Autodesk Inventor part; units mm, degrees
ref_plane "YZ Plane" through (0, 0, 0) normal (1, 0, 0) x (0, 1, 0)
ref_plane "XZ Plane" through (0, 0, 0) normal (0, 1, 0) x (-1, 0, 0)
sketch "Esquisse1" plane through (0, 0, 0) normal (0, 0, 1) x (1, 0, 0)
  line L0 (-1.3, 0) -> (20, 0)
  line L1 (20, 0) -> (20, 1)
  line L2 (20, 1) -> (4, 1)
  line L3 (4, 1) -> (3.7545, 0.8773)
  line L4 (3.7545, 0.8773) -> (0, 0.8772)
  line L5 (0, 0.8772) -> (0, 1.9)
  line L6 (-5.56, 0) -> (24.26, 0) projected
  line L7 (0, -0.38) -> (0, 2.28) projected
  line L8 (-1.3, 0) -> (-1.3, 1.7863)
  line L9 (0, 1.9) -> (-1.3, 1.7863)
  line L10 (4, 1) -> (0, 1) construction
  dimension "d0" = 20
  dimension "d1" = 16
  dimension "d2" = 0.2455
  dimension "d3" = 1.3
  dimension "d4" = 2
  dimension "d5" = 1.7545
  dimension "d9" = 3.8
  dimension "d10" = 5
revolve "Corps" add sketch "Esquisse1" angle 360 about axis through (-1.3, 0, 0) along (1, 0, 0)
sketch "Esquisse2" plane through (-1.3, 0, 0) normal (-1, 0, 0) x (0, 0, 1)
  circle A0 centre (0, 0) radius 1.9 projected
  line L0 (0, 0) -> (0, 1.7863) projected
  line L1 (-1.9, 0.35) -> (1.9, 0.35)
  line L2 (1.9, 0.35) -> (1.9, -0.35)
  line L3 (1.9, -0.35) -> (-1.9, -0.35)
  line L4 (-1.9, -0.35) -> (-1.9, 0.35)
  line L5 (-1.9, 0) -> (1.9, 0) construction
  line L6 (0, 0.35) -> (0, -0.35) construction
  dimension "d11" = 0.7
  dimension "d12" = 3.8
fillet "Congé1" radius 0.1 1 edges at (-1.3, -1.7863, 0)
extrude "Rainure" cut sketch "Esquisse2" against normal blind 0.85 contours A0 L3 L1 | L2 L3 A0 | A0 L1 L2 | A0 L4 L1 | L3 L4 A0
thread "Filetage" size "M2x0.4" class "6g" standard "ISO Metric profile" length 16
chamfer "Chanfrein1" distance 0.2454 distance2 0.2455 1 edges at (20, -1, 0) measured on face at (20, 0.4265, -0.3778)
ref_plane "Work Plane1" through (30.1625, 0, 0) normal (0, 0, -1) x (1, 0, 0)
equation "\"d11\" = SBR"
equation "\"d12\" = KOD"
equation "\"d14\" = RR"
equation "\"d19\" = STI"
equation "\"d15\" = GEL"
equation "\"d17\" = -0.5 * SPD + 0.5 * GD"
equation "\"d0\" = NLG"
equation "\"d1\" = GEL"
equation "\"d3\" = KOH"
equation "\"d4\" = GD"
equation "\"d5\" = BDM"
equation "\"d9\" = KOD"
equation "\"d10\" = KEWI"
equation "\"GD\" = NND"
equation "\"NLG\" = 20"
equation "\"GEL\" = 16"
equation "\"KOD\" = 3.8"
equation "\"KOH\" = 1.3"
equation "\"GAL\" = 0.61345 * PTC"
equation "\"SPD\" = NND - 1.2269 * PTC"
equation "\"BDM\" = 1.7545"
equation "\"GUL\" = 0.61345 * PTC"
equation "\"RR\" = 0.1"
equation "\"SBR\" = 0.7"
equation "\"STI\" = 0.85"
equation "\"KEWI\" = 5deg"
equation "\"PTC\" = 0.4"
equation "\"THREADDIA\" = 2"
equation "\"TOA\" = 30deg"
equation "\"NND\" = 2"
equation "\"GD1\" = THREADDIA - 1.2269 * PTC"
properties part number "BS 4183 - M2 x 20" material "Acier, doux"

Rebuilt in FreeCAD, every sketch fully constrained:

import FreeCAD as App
import Part
import Sketcher


def edges_at(feature, points):
    """Names of the edges that pass closest to the given points."""
    edges = feature.Shape.Edges
    near = lambda p: min(range(len(edges)), key=lambda i: edges[i].distToShape(Part.Vertex(*p))[0])
    return sorted({f"Edge{near(p) + 1}" for p in points})

doc = App.newDocument("Part")
body = doc.addObject("PartDesign::Body", "Body")

# Sketch on XY plane
sketch1 = body.newObject("Sketcher::SketchObject", "Sketch")
sketch1.AttachmentSupport = (doc.getObject("XY_Plane"), [""])
sketch1.MapMode = "FlatFace"
sketch1.addGeometry([
    Part.LineSegment(App.Vector(-1.3, 1.79, 0), App.Vector(-1.3, 0, 0)),  # 0
    Part.LineSegment(App.Vector(-1.3, 0, 0), App.Vector(20, 0, 0)),  # 1
    Part.LineSegment(App.Vector(20, 0, 0), App.Vector(20, 1, 0)),  # 2
    Part.LineSegment(App.Vector(20, 1, 0), App.Vector(4, 1, 0)),  # 3
    Part.LineSegment(App.Vector(4, 1, 0), App.Vector(3.75, 0.88, 0)),  # 4
    Part.LineSegment(App.Vector(3.75, 0.88, 0), App.Vector(0, 0.88, 0)),  # 5
    Part.LineSegment(App.Vector(0, 0.88, 0), App.Vector(0, 1.9, 0)),  # 6
    Part.LineSegment(App.Vector(0, 1.9, 0), App.Vector(-1.3, 1.79, 0)),  # 7
], False)
sketch1.addConstraint([
    Sketcher.Constraint("Coincident", 0, 2, 1, 1),
    Sketcher.Constraint("Coincident", 1, 2, 2, 1),
    Sketcher.Constraint("Coincident", 2, 2, 3, 1),
    Sketcher.Constraint("Coincident", 3, 2, 4, 1),
    Sketcher.Constraint("Coincident", 4, 2, 5, 1),
    Sketcher.Constraint("Coincident", 5, 2, 6, 1),
    Sketcher.Constraint("Coincident", 6, 2, 7, 1),
    Sketcher.Constraint("Coincident", 7, 2, 0, 1),
    Sketcher.Constraint("Vertical", 0),
    Sketcher.Constraint("Horizontal", 1),
    Sketcher.Constraint("Vertical", 2),
    Sketcher.Constraint("Horizontal", 3),
    Sketcher.Constraint("Horizontal", 5),
    Sketcher.Constraint("Vertical", 6),
    Sketcher.Constraint("PointOnObject", 0, 2, -1),
    Sketcher.Constraint("PointOnObject", 5, 2, -2),
    Sketcher.Constraint("DistanceX", 3, 2, 3, 1, 16.0),
    Sketcher.Constraint("DistanceX", -1, 1, 1, 2, 20.0),
    Sketcher.Constraint("DistanceX", 0, 2, -1, 1, 1.3),
    Sketcher.Constraint("DistanceY", 2, 1, 2, 2, 1.0),
    Sketcher.Constraint("DistanceY", -1, 1, 6, 2, 1.9),
    Sketcher.Constraint("DistanceX", 4, 2, 3, 2, 0.2455),
    Sketcher.Constraint("Distance", 7, 1.305),
    Sketcher.Constraint("DistanceY", 6, 1, 6, 2, 1.0228),
])
revolution = body.newObject("PartDesign::Revolution", "Revolution")
revolution.Profile = sketch1
revolution.ReferenceAxis = (sketch1, ["H_Axis"])
revolution.Angle = 360
doc.recompute()

fillet = body.newObject("PartDesign::Fillet", "Fillet")
fillet.Base = (revolution, edges_at(revolution, [(-1.3, -1.786, 0)]))
fillet.Radius = 0.1

# Sketch on YZ plane
sketch2 = body.newObject("Sketcher::SketchObject", "Sketch001")
sketch2.AttachmentSupport = (doc.getObject("YZ_Plane"), [""])
sketch2.MapMode = "FlatFace"
sketch2.AttachmentOffset = App.Placement(App.Vector(0, 0, -1.3), App.Rotation())
sketch2.addGeometry([
    Part.LineSegment(App.Vector(-0.3, 1.9, 0), App.Vector(0.3, 1.9, 0)),
    Part.LineSegment(App.Vector(0.3, 1.9, 0), App.Vector(0.3, -1.9, 0)),
    Part.LineSegment(App.Vector(0.3, -1.9, 0), App.Vector(-0.3, -1.9, 0)),
    Part.LineSegment(App.Vector(-0.3, -1.9, 0), App.Vector(-0.3, 1.9, 0)),
], False)
sketch2.addConstraint([
    Sketcher.Constraint("Coincident", 0, 2, 1, 1),
    Sketcher.Constraint("Coincident", 1, 2, 2, 1),
    Sketcher.Constraint("Coincident", 2, 2, 3, 1),
    Sketcher.Constraint("Coincident", 3, 2, 0, 1),
    Sketcher.Constraint("Horizontal", 0),
    Sketcher.Constraint("Vertical", 1),
    Sketcher.Constraint("Horizontal", 2),
    Sketcher.Constraint("Vertical", 3),
    Sketcher.Constraint("Symmetric", 0, 2, 2, 2, -1, 1),
    Sketcher.Constraint("DistanceX", 0, 1, 0, 2, 0.7),
    Sketcher.Constraint("DistanceY", 1, 2, 1, 1, 3.8),
])
pocket1 = body.newObject("PartDesign::Pocket", "Pocket")
pocket1.Profile = sketch2
pocket1.Length = 0.85
pocket1.Reversed = True
doc.recompute()

chamfer = body.newObject("PartDesign::Chamfer", "Chamfer")
chamfer.Base = (pocket1, edges_at(pocket1, [(20, -1, 0)]))
chamfer.ChamferType = "Two distances"
chamfer.Size = 0.2454
chamfer.Size2 = 0.2455

doc.recompute()
